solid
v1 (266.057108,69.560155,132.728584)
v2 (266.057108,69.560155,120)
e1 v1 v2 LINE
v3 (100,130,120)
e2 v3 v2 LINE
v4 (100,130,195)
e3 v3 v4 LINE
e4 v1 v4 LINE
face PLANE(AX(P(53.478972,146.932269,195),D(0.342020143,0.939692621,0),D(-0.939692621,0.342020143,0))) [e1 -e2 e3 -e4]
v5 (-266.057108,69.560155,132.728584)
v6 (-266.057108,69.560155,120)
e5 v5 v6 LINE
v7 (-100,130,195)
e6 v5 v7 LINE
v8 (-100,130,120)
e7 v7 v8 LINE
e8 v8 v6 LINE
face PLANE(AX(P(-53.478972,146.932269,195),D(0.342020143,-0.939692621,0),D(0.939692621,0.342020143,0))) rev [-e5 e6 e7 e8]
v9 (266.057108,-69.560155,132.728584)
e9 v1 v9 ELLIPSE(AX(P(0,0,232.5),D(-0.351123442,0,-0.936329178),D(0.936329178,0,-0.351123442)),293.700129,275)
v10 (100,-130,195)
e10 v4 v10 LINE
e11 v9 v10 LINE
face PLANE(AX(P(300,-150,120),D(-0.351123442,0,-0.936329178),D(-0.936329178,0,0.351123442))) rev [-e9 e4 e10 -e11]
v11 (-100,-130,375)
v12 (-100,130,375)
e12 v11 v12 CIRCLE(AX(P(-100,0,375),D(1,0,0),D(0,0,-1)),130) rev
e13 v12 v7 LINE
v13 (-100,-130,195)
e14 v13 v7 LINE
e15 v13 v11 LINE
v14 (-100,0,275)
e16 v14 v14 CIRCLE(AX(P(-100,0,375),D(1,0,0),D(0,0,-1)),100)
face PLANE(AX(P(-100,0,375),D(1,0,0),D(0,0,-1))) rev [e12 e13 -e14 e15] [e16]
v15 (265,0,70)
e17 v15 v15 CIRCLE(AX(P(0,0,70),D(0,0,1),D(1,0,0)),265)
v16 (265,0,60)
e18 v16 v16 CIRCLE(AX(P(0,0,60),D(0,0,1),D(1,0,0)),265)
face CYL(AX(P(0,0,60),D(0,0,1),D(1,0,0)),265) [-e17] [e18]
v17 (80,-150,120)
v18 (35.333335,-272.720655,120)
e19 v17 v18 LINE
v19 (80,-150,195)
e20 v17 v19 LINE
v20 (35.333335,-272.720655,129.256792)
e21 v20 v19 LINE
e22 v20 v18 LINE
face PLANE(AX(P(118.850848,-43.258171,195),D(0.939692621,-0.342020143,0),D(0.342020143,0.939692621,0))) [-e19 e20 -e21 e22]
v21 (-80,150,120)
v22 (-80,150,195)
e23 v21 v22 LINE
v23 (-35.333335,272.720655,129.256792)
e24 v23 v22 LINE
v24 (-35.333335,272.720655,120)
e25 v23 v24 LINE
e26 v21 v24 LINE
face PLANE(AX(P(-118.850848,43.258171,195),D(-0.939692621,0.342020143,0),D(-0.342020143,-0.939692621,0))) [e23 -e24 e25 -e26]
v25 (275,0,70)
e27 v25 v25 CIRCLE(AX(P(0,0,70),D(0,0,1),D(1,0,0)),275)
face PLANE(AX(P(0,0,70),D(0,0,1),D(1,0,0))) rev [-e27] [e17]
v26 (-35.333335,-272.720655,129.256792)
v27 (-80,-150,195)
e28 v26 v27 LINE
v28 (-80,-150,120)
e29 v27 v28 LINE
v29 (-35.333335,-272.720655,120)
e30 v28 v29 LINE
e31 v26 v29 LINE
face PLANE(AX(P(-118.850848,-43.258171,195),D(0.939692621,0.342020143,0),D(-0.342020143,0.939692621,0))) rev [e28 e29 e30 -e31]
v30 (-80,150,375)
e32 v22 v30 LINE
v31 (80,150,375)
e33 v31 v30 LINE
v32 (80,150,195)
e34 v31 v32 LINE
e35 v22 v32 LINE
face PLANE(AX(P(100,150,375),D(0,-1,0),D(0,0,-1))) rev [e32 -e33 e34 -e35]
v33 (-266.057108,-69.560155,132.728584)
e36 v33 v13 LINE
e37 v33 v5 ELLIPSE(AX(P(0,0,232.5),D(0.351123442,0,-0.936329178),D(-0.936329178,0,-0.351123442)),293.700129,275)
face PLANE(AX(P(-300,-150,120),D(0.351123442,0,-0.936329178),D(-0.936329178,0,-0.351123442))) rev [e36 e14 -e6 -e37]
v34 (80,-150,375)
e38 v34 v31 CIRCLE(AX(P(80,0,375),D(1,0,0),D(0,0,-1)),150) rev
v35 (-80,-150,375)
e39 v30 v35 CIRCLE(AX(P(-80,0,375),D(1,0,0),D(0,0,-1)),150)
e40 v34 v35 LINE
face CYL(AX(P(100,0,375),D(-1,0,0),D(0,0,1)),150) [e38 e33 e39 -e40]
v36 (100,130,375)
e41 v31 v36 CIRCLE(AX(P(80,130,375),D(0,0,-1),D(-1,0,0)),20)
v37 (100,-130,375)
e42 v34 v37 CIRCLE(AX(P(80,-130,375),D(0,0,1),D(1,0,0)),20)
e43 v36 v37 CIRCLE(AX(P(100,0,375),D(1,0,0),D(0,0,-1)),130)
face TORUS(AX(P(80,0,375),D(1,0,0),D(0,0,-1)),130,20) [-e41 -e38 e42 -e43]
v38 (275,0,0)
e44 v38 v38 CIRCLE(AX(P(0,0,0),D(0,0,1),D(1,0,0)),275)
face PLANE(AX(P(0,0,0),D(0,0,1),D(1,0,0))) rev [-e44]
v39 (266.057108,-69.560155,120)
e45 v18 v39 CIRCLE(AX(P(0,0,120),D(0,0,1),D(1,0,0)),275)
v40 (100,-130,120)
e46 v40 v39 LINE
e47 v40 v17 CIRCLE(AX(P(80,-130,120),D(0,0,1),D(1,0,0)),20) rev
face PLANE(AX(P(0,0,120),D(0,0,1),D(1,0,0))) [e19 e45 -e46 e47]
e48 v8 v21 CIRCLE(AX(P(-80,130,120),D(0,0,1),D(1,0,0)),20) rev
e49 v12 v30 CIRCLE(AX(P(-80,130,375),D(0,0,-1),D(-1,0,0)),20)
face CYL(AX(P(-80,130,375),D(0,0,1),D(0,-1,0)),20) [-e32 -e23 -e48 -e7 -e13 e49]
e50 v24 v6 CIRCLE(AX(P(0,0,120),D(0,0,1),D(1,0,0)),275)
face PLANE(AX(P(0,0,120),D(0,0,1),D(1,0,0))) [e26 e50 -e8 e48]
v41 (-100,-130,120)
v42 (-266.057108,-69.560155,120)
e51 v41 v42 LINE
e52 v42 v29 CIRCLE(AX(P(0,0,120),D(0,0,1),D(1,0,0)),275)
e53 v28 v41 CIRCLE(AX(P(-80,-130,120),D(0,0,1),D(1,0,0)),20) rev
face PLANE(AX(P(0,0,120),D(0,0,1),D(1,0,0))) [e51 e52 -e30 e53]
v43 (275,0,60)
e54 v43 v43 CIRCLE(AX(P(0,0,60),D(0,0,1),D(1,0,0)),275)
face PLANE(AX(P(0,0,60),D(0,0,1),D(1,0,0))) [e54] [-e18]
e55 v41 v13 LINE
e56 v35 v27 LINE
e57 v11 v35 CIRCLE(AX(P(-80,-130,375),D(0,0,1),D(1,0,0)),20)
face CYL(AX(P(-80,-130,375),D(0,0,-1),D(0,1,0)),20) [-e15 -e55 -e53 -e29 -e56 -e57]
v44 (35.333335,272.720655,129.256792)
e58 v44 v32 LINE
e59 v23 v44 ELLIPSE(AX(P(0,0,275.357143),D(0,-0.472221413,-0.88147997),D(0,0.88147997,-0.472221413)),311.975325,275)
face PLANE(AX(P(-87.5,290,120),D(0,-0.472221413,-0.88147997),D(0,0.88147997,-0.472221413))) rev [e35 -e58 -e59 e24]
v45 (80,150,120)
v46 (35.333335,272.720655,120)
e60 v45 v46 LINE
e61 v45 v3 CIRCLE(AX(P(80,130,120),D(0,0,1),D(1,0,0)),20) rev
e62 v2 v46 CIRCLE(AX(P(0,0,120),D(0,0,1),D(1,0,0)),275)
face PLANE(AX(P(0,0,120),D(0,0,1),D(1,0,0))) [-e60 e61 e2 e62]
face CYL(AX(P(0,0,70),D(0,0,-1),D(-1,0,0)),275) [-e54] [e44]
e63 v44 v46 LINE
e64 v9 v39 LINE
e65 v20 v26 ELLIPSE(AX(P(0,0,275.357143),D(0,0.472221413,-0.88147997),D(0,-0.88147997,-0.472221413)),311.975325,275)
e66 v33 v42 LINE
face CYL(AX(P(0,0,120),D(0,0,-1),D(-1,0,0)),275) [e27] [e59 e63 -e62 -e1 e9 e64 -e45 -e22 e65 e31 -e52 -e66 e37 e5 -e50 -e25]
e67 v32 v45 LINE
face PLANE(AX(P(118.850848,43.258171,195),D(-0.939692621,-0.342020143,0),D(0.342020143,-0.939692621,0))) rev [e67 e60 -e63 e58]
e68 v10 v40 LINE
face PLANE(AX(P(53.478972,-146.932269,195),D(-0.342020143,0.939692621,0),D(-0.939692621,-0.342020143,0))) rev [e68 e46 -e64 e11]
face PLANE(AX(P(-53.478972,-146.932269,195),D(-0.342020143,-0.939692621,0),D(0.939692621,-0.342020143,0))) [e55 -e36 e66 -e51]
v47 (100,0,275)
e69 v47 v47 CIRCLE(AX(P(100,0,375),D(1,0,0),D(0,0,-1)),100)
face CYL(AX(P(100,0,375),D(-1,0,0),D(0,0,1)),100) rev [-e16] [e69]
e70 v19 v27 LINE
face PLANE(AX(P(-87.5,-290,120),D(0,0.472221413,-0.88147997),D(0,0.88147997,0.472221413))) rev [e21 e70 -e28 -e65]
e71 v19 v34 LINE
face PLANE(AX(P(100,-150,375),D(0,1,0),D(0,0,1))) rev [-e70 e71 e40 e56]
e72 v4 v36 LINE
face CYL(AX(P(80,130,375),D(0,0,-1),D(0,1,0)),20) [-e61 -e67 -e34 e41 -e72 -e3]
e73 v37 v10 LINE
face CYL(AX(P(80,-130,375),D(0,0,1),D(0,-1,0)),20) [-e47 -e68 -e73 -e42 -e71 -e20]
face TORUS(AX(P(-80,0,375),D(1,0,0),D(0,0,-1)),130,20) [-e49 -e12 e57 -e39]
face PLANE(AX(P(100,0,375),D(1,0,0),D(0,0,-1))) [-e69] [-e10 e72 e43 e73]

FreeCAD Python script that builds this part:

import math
import FreeCAD as App
import Part
import Sketcher
from FreeCAD import Vector
Q = App.Units.Quantity


def edges_at(feature, points):
    """Names of the edges that pass closest to the given points."""
    edges = feature.Shape.Edges
    near = lambda p: min(range(len(edges)), key=lambda i: edges[i].distToShape(Part.Vertex(*p))[0])
    return sorted({f"Edge{near(p) + 1}" for p in points})


def add_polygon(sketch, points):
    """Adds a closed chain of lines whose ends are joined by coincident constraints."""
    first, n = sketch.GeometryCount, len(points)
    for a, b in zip(points, points[1:] + points[:1]):
        sketch.addGeometry(Part.LineSegment(App.Vector(*a, 0), App.Vector(*b, 0)), False)
    for i in range(n):
        sketch.addConstraint(Sketcher.Constraint("Coincident", first + i, 2, first + (i + 1) % n, 1))

doc = App.newDocument("Part")
params = doc.addObject("Spreadsheet::Sheet", "Params")
for row, (alias, value) in enumerate([
    ("sketch1_diameter", "550 mm"),
    ("pad1_length", "70 mm"),
    ("sketch2_diameter", "550 mm"),
    ("sketch2_diameter2", "530 mm"),
    ("pocket1_length", "10 mm"),
    ("sketch3_diameter", "550 mm"),
    ("pad2_length", "50 mm"),
    ("sketch4_diameter", "300 mm"),
    ("sketch4_diameter2", "200 mm"),
    ("pad3_length", "200 mm"),
    ("sketch5_radius", "150 mm"),
    ("sketch5_height", "255 mm"),
    ("pad4_length", "200 mm"),
    ("fillet_radius", "20 mm"),
    ("sketch6_radius", "275 mm"),
    ("sketch6_width", "160 mm"),
    ("sketch6_height", "260 mm"),
    ("pad5_length", "75 mm"),
    ("sketch7_width", "200 mm"),
    ("sketch7_height", "75 mm"),
    ("pocket2_length", "300 mm"),
    ("sketch8_width", "140 mm"),
    ("sketch8_height", "75 mm"),
    ("pocket3_length", "175 mm"),
], start=1):
    params.set(f"A{row}", alias)
    params.set(f"B{row}", "=" + value)
    params.setAlias(f"B{row}", alias)

body = doc.addObject("PartDesign::Body", "Body")

sketch1 = body.newObject("Sketcher::SketchObject", "Sketch")
sketch1.AttachmentSupport = (doc.getObject("XY_Plane"), [""])
sketch1.MapMode = "FlatFace"
sketch1.addGeometry(Part.Circle(Vector(0, 0, 0), Vector(0, 0, 1), 275), False)
sketch1.addConstraint([
    Sketcher.Constraint("Coincident", 0, 3, -1, 1),
    Sketcher.Constraint("Diameter", 0, Q("550 mm")),
])
sketch1.setExpression("Constraints[1]", "Params.sketch1_diameter")
pad1 = body.newObject("PartDesign::Pad", "Pad")
pad1.Profile = sketch1
pad1.setExpression("Length", "Params.pad1_length")

sketch2 = body.newObject("Sketcher::SketchObject", "Sketch001")
sketch2.AttachmentSupport = (doc.getObject("XY_Plane"), [""])
sketch2.MapMode = "FlatFace"
sketch2.AttachmentOffset = App.Placement(Vector(0, 0, 70), App.Rotation())
sketch2.addGeometry([
    Part.Circle(Vector(0, 0, 0), Vector(0, 0, 1), 275),
    Part.Circle(Vector(0, 0, 0), Vector(0, 0, 1), 265),
], False)
sketch2.addConstraint([
    Sketcher.Constraint("Coincident", 0, 3, -1, 1),
    Sketcher.Constraint("Coincident", 1, 3, -1, 1),
    Sketcher.Constraint("Diameter", 0, Q("550 mm")),
    Sketcher.Constraint("Diameter", 1, Q("530 mm")),
])
sketch2.setExpression("Constraints[2]", "Params.sketch2_diameter")
sketch2.setExpression("Constraints[3]", "Params.sketch2_diameter2")
pocket1 = body.newObject("PartDesign::Pocket", "Pocket")
pocket1.Profile = sketch2
pocket1.setExpression("Length", "Params.pocket1_length")

sketch3 = body.newObject("Sketcher::SketchObject", "Sketch002")
sketch3.AttachmentSupport = (doc.getObject("XY_Plane"), [""])
sketch3.MapMode = "FlatFace"
sketch3.AttachmentOffset = App.Placement(Vector(0, 0, 70), App.Rotation())
sketch3.addGeometry(Part.Circle(Vector(0, 0, 0), Vector(0, 0, 1), 275), False)
sketch3.addConstraint([
    Sketcher.Constraint("Coincident", 0, 3, -1, 1),
    Sketcher.Constraint("Diameter", 0, Q("550 mm")),
])
sketch3.setExpression("Constraints[1]", "Params.sketch3_diameter")
pad2 = body.newObject("PartDesign::Pad", "Pad001")
pad2.Profile = sketch3
pad2.setExpression("Length", "Params.pad2_length")
body2 = doc.addObject("PartDesign::Body", "Body001")

sketch4 = body2.newObject("Sketcher::SketchObject", "Sketch003")
sketch4.AttachmentSupport = (doc.getObject("YZ_Plane001"), [""])
sketch4.MapMode = "FlatFace"
sketch4.addGeometry([
    Part.Circle(Vector(0, 375, 0), Vector(0, 0, 1), 150),
    Part.Circle(Vector(0, 375, 0), Vector(0, 0, 1), 100),
], False)
sketch4.addConstraint([
    Sketcher.Constraint("Coincident", 1, 3, 0, 3),
    Sketcher.Constraint("PointOnObject", 0, 3, -2),
    Sketcher.Constraint("Diameter", 0, Q("300 mm")),
    Sketcher.Constraint("Diameter", 1, Q("200 mm")),
    Sketcher.Constraint("DistanceY", -1, 1, 0, 3, Q("375 mm")),
])
sketch4.setExpression("Constraints[2]", "Params.sketch4_diameter")
sketch4.setExpression("Constraints[3]", "Params.sketch4_diameter2")
pad3 = body2.newObject("PartDesign::Pad", "Pad002")
pad3.Profile = sketch4
pad3.setExpression("Length", "Params.pad3_length")
pad3.Midplane = True
body.AllowCompound = True
doc.recompute()

boolean = body.newObject("PartDesign::Boolean", "Boolean")
boolean.Type = "Fuse"
boolean.addObjects([body2])

sketch5 = body.newObject("Sketcher::SketchObject", "Sketch004")
sketch5.AttachmentSupport = (doc.getObject("YZ_Plane"), [""])
sketch5.MapMode = "FlatFace"
sketch5.addGeometry([
    Part.LineSegment(Vector(150, 120, 0), Vector(150, 375, 0)),
    Part.ArcOfCircle(Part.Circle(Vector(0, 375, 0), Vector(0, 0, 1), 150), math.radians(180), math.radians(360)),
    Part.LineSegment(Vector(-150, 375, 0), Vector(-150, 120, 0)),
    Part.LineSegment(Vector(-150, 120, 0), Vector(150, 120, 0)),
], False)
sketch5.addConstraint([
    Sketcher.Constraint("Tangent", 0, 2, 1, 2),
    Sketcher.Constraint("Tangent", 1, 1, 2, 1),
    Sketcher.Constraint("Coincident", 2, 2, 3, 1),
    Sketcher.Constraint("Coincident", 3, 2, 0, 1),
    Sketcher.Constraint("Vertical", 0),
    Sketcher.Constraint("Vertical", 2),
    Sketcher.Constraint("Horizontal", 3),
    Sketcher.Constraint("PointOnObject", 1, 3, -2),
    Sketcher.Constraint("Radius", 1, Q("150 mm")),
    Sketcher.Constraint("DistanceY", 0, 1, 0, 2, Q("255 mm")),
    Sketcher.Constraint("DistanceY", -1, 1, 1, 3, Q("375 mm")),
])
sketch5.setExpression("Constraints[8]", "Params.sketch5_radius")
sketch5.setExpression("Constraints[9]", "Params.sketch5_height")
pad4 = body.newObject("PartDesign::Pad", "Pad003")
pad4.Profile = sketch5
pad4.setExpression("Length", "Params.pad4_length")
pad4.Midplane = True
doc.recompute()

fillet = body.newObject("PartDesign::Fillet", "Fillet")
fillet.Base = (pad4, edges_at(pad4, [
    (-100, -150, 247.5),
    (-100, 150, 247.5),
    (100, -150, 247.5),
    (100, 150, 247.5),
    (-100, 0, 525),
    (100, 0, 525),
]))
fillet.setExpression("Radius", "Params.fillet_radius")

sketch6 = body.newObject("Sketcher::SketchObject", "Sketch005")
sketch6.AttachmentSupport = (doc.getObject("XY_Plane"), [""])
sketch6.MapMode = "FlatFace"
sketch6.AttachmentOffset = App.Placement(Vector(0, 0, 120), App.Rotation())
sketch6.addGeometry([
    Part.ArcOfCircle(Part.Circle(Vector(0, 0, 0), Vector(0, 0, 1), 275), math.radians(165), math.radians(195)),
    Part.LineSegment(Vector(-266, -70, 0), Vector(-100, -130, 0)),
    Part.LineSegment(Vector(-100, -130, 0), Vector(-100, 130, 0)),
    Part.LineSegment(Vector(-100, 130, 0), Vector(-266, 70, 0)),
    Part.LineSegment(Vector(100, -130, 0), Vector(266, -70, 0)),
    Part.ArcOfCircle(Part.Circle(Vector(0, 0, 0), Vector(0, 0, 1), 275), math.radians(-14.65), math.radians(0)),
    Part.ArcOfCircle(Part.Circle(Vector(0, 0, 0), Vector(0, 0, 1), 275), math.radians(0), math.radians(14.65)),
    Part.LineSegment(Vector(266, 70, 0), Vector(100, 130, 0)),
    Part.LineSegment(Vector(100, 130, 0), Vector(100, -130, 0)),
    Part.ArcOfCircle(Part.Circle(Vector(0, 0, 0), Vector(0, 0, 1), 275), math.radians(82.62), math.radians(97.38)),
    Part.LineSegment(Vector(-35, 273, 0), Vector(-80, 150, 0)),
    Part.LineSegment(Vector(-80, 150, 0), Vector(80, 150, 0)),
    Part.LineSegment(Vector(80, 150, 0), Vector(35, 273, 0)),
    Part.LineSegment(Vector(80, -150, 0), Vector(-80, -150, 0)),
    Part.LineSegment(Vector(-80, -150, 0), Vector(-35, -273, 0)),
    Part.ArcOfCircle(Part.Circle(Vector(0, 0, 0), Vector(0, 0, 1), 275), math.radians(-97.38), math.radians(-82.62)),
    Part.LineSegment(Vector(35, -273, 0), Vector(80, -150, 0)),
], False)
sketch6.addConstraint([
    Sketcher.Constraint("Coincident", 0, 2, 1, 1),
    Sketcher.Constraint("Coincident", 1, 2, 2, 1),
    Sketcher.Constraint("Coincident", 2, 2, 3, 1),
    Sketcher.Constraint("Coincident", 3, 2, 0, 1),
    Sketcher.Constraint("Coincident", 4, 2, 5, 1),
    Sketcher.Constraint("Tangent", 5, 2, 6, 1),
    Sketcher.Constraint("Coincident", 6, 2, 7, 1),
    Sketcher.Constraint("Coincident", 7, 2, 8, 1),
    Sketcher.Constraint("Coincident", 8, 2, 4, 1),
    Sketcher.Constraint("Coincident", 9, 2, 10, 1),
    Sketcher.Constraint("Coincident", 10, 2, 11, 1),
    Sketcher.Constraint("Coincident", 11, 2, 12, 1),
    Sketcher.Constraint("Coincident", 12, 2, 9, 1),
    Sketcher.Constraint("Coincident", 13, 2, 14, 1),
    Sketcher.Constraint("Coincident", 14, 2, 15, 1),
    Sketcher.Constraint("Coincident", 15, 2, 16, 1),
    Sketcher.Constraint("Coincident", 16, 2, 13, 1),
    Sketcher.Constraint("Vertical", 2),
    Sketcher.Constraint("Vertical", 8),
    Sketcher.Constraint("Horizontal", 11),
    Sketcher.Constraint("Horizontal", 13),
    Sketcher.Constraint("Coincident", 0, 3, -1, 1),
    Sketcher.Constraint("Coincident", 5, 3, -1, 1),
    Sketcher.Constraint("Coincident", 9, 3, -1, 1),
    Sketcher.Constraint("Coincident", 15, 3, -1, 1),
    Sketcher.Constraint("Equal", 0, 5),
    Sketcher.Constraint("Equal", 5, 6),
    Sketcher.Constraint("Equal", 6, 9),
    Sketcher.Constraint("Equal", 9, 15),
    Sketcher.Constraint("Symmetric", 1, 2, 7, 2, -1, 1),
    Sketcher.Constraint("Symmetric", 11, 2, 13, 2, -1, 1),
    Sketcher.Constraint("PointOnObject", 5, 2, -1),
    Sketcher.Constraint("Parallel", 3, 4),
    Sketcher.Constraint("Parallel", 1, 7),
    Sketcher.Constraint("Perpendicular", 7, 10),
    Sketcher.Constraint("Perpendicular", 4, 12),
    Sketcher.Constraint("Parallel", 12, 14),
    Sketcher.Constraint("Parallel", 10, 16),
    Sketcher.Constraint("Horizontal", 0, 2, 4, 2),
    Sketcher.Constraint("Horizontal", 3, 2, 6, 2),
    Sketcher.Constraint("Horizontal", 2, 2, 7, 2),
    Sketcher.Constraint("Horizontal", 9, 2, 12, 2),
    Sketcher.Constraint("Horizontal", 14, 2, 15, 2),
    Sketcher.Constraint("Radius", 0, Q("275 mm")),
    Sketcher.Constraint("DistanceX", 11, 1, 11, 2, Q("160 mm")),
    Sketcher.Constraint("DistanceY", 2, 1, 2, 2, Q("260 mm")),
    Sketcher.Constraint("Angle", 1, Q("-20 deg")),
    Sketcher.Constraint("DistanceX", 1, 2, -1, 1, Q("100 mm")),
    Sketcher.Constraint("DistanceY", -1, 1, 10, 2, Q("150 mm")),
])
sketch6.setExpression("Constraints[43]", "Params.sketch6_radius")
sketch6.setExpression("Constraints[44]", "Params.sketch6_width")
sketch6.setExpression("Constraints[45]", "Params.sketch6_height")
pad5 = body.newObject("PartDesign::Pad", "Pad004")
pad5.Profile = sketch6
pad5.setExpression("Length", "Params.pad5_length")

sketch7 = body.newObject("Sketcher::SketchObject", "Sketch006")
sketch7.AttachmentSupport = (doc.getObject("XZ_Plane"), [""])
sketch7.MapMode = "FlatFace"
add_polygon(sketch7, [(-100, 195), (-300, 120), (-300, 195)])
add_polygon(sketch7, [(300, 120), (100, 195), (300, 195)])
sketch7.addConstraint([
    Sketcher.Constraint("Vertical", 1),
    Sketcher.Constraint("Horizontal", 2),
    Sketcher.Constraint("Horizontal", 4),
    Sketcher.Constraint("Vertical", 5),
    Sketcher.Constraint("Symmetric", 2, 2, 3, 2, -2),
    Sketcher.Constraint("Symmetric", 0, 2, 5, 2, -2),
    Sketcher.Constraint("DistanceX", 2, 1, 2, 2, Q("200 mm")),
    Sketcher.Constraint("DistanceY", 1, 1, 1, 2, Q("75 mm")),
    Sketcher.Constraint("DistanceX", 0, 2, -1, 1, Q("300 mm")),
    Sketcher.Constraint("DistanceY", -1, 1, 0, 2, Q("120 mm")),
])
sketch7.setExpression("Constraints[12]", "Params.sketch7_width")
sketch7.setExpression("Constraints[13]", "Params.sketch7_height")
pocket2 = body.newObject("PartDesign::Pocket", "Pocket001")
pocket2.Profile = sketch7
pocket2.setExpression("Length", "Params.pocket2_length")
pocket2.Midplane = True

sketch8 = body.newObject("Sketcher::SketchObject", "Sketch007")
sketch8.AttachmentSupport = (doc.getObject("YZ_Plane"), [""])
sketch8.MapMode = "FlatFace"
add_polygon(sketch8, [(290, 195), (150, 195), (290, 120)])
add_polygon(sketch8, [(-290, 120), (-150, 195), (-290, 195)])
sketch8.addConstraint([
    Sketcher.Constraint("Horizontal", 0),
    Sketcher.Constraint("Vertical", 2),
    Sketcher.Constraint("Horizontal", 4),
    Sketcher.Constraint("Vertical", 5),
    Sketcher.Constraint("Symmetric", 0, 2, 3, 2, -2),
    Sketcher.Constraint("Symmetric", 1, 2, 5, 2, -2),
    Sketcher.Constraint("DistanceX", 0, 2, 0, 1, Q("140 mm")),
    Sketcher.Constraint("DistanceY", 2, 1, 2, 2, Q("75 mm")),
    Sketcher.Constraint("DistanceX", -1, 1, 0, 2, Q("150 mm")),
    Sketcher.Constraint("DistanceY", -1, 1, 0, 2, Q("195 mm")),
])
sketch8.setExpression("Constraints[12]", "Params.sketch8_width")
sketch8.setExpression("Constraints[13]", "Params.sketch8_height")
pocket3 = body.newObject("PartDesign::Pocket", "Pocket002")
pocket3.Profile = sketch8
pocket3.setExpression("Length", "Params.pocket3_length")
pocket3.Midplane = True

doc.recompute()
